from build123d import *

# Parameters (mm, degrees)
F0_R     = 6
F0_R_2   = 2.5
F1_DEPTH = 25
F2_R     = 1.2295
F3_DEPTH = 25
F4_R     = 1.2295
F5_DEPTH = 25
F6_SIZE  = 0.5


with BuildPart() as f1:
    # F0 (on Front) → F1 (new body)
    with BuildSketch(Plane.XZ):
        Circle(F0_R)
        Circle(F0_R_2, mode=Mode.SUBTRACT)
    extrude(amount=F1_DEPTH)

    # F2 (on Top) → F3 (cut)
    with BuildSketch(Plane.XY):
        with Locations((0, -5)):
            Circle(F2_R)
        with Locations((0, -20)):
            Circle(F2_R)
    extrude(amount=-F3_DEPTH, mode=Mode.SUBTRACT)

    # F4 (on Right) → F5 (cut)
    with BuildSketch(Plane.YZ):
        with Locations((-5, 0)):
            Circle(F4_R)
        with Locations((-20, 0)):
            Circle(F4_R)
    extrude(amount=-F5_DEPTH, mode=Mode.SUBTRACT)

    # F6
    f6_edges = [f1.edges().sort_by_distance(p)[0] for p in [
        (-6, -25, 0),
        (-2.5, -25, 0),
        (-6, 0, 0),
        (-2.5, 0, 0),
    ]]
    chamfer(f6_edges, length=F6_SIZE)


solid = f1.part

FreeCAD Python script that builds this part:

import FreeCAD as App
import Part
import Sketcher


def edges_at(feature, points):
    """Names of the edges that pass closest to the given points."""
    edges = feature.Shape.Edges
    near = lambda p: min(range(len(edges)), key=lambda i: edges[i].distToShape(Part.Vertex(*p))[0])
    return sorted({f"Edge{near(p) + 1}" for p in points})

doc = App.newDocument("Part")
body = doc.addObject("PartDesign::Body", "Body")

# Sketch on XZ plane
sketch1 = body.newObject("Sketcher::SketchObject", "Sketch")
sketch1.AttachmentSupport = (doc.getObject("XZ_Plane"), [""])
sketch1.MapMode = "FlatFace"
sketch1.addGeometry([
    Part.Circle(App.Vector(0, 0, 0), App.Vector(0, 0, 1), 6),
    Part.Circle(App.Vector(0, 0, 0), App.Vector(0, 0, 1), 2.5),
], False)
sketch1.addConstraint([
    Sketcher.Constraint("Coincident", 0, 3, -1, 1),
    Sketcher.Constraint("Coincident", 1, 3, -1, 1),
    Sketcher.Constraint("Diameter", 0, 12.0),
    Sketcher.Constraint("Diameter", 1, 5.0),
])
pad1 = body.newObject("PartDesign::Pad", "Pad")
pad1.Profile = sketch1
pad1.Length = 25

# Sketch on XY plane
sketch2 = body.newObject("Sketcher::SketchObject", "Sketch001")
sketch2.AttachmentSupport = (doc.getObject("XY_Plane"), [""])
sketch2.MapMode = "FlatFace"
sketch2.addGeometry([
    Part.Circle(App.Vector(0, -5, 0), App.Vector(0, 0, 1), 1.2),
    Part.Circle(App.Vector(0, -20, 0), App.Vector(0, 0, 1), 1.2),
], False)
sketch2.addConstraint([
    Sketcher.Constraint("Equal", 0, 1),
    Sketcher.Constraint("PointOnObject", 0, 3, -2),
    Sketcher.Constraint("PointOnObject", 1, 3, -2),
    Sketcher.Constraint("Diameter", 0, 2.459),
    Sketcher.Constraint("DistanceY", 0, 3, -1, 1, 5.0),
    Sketcher.Constraint("DistanceY", 1, 3, -1, 1, 20.0),
])
pocket1 = body.newObject("PartDesign::Pocket", "Pocket")
pocket1.Profile = sketch2
pocket1.Length = 25

# Sketch on YZ plane
sketch3 = body.newObject("Sketcher::SketchObject", "Sketch002")
sketch3.AttachmentSupport = (doc.getObject("YZ_Plane"), [""])
sketch3.MapMode = "FlatFace"
sketch3.addGeometry([
    Part.Circle(App.Vector(-5, 0, 0), App.Vector(0, 0, 1), 1.2),
    Part.Circle(App.Vector(-20, 0, 0), App.Vector(0, 0, 1), 1.2),
], False)
sketch3.addConstraint([
    Sketcher.Constraint("Equal", 0, 1),
    Sketcher.Constraint("PointOnObject", 0, 3, -1),
    Sketcher.Constraint("PointOnObject", 1, 3, -1),
    Sketcher.Constraint("Diameter", 0, 2.459),
    Sketcher.Constraint("DistanceX", 0, 3, -1, 1, 5.0),
    Sketcher.Constraint("DistanceX", 1, 3, -1, 1, 20.0),
])
pocket2 = body.newObject("PartDesign::Pocket", "Pocket001")
pocket2.Profile = sketch3
pocket2.Length = 25
doc.recompute()

chamfer = body.newObject("PartDesign::Chamfer", "Chamfer")
chamfer.Base = (pocket2, edges_at(pocket2, [
    (-6, -25, 0),
    (-2.5, -25, 0),
    (-6, 0, 0),
    (-2.5, 0, 0),
]))
chamfer.Size = 0.5

doc.recompute()
